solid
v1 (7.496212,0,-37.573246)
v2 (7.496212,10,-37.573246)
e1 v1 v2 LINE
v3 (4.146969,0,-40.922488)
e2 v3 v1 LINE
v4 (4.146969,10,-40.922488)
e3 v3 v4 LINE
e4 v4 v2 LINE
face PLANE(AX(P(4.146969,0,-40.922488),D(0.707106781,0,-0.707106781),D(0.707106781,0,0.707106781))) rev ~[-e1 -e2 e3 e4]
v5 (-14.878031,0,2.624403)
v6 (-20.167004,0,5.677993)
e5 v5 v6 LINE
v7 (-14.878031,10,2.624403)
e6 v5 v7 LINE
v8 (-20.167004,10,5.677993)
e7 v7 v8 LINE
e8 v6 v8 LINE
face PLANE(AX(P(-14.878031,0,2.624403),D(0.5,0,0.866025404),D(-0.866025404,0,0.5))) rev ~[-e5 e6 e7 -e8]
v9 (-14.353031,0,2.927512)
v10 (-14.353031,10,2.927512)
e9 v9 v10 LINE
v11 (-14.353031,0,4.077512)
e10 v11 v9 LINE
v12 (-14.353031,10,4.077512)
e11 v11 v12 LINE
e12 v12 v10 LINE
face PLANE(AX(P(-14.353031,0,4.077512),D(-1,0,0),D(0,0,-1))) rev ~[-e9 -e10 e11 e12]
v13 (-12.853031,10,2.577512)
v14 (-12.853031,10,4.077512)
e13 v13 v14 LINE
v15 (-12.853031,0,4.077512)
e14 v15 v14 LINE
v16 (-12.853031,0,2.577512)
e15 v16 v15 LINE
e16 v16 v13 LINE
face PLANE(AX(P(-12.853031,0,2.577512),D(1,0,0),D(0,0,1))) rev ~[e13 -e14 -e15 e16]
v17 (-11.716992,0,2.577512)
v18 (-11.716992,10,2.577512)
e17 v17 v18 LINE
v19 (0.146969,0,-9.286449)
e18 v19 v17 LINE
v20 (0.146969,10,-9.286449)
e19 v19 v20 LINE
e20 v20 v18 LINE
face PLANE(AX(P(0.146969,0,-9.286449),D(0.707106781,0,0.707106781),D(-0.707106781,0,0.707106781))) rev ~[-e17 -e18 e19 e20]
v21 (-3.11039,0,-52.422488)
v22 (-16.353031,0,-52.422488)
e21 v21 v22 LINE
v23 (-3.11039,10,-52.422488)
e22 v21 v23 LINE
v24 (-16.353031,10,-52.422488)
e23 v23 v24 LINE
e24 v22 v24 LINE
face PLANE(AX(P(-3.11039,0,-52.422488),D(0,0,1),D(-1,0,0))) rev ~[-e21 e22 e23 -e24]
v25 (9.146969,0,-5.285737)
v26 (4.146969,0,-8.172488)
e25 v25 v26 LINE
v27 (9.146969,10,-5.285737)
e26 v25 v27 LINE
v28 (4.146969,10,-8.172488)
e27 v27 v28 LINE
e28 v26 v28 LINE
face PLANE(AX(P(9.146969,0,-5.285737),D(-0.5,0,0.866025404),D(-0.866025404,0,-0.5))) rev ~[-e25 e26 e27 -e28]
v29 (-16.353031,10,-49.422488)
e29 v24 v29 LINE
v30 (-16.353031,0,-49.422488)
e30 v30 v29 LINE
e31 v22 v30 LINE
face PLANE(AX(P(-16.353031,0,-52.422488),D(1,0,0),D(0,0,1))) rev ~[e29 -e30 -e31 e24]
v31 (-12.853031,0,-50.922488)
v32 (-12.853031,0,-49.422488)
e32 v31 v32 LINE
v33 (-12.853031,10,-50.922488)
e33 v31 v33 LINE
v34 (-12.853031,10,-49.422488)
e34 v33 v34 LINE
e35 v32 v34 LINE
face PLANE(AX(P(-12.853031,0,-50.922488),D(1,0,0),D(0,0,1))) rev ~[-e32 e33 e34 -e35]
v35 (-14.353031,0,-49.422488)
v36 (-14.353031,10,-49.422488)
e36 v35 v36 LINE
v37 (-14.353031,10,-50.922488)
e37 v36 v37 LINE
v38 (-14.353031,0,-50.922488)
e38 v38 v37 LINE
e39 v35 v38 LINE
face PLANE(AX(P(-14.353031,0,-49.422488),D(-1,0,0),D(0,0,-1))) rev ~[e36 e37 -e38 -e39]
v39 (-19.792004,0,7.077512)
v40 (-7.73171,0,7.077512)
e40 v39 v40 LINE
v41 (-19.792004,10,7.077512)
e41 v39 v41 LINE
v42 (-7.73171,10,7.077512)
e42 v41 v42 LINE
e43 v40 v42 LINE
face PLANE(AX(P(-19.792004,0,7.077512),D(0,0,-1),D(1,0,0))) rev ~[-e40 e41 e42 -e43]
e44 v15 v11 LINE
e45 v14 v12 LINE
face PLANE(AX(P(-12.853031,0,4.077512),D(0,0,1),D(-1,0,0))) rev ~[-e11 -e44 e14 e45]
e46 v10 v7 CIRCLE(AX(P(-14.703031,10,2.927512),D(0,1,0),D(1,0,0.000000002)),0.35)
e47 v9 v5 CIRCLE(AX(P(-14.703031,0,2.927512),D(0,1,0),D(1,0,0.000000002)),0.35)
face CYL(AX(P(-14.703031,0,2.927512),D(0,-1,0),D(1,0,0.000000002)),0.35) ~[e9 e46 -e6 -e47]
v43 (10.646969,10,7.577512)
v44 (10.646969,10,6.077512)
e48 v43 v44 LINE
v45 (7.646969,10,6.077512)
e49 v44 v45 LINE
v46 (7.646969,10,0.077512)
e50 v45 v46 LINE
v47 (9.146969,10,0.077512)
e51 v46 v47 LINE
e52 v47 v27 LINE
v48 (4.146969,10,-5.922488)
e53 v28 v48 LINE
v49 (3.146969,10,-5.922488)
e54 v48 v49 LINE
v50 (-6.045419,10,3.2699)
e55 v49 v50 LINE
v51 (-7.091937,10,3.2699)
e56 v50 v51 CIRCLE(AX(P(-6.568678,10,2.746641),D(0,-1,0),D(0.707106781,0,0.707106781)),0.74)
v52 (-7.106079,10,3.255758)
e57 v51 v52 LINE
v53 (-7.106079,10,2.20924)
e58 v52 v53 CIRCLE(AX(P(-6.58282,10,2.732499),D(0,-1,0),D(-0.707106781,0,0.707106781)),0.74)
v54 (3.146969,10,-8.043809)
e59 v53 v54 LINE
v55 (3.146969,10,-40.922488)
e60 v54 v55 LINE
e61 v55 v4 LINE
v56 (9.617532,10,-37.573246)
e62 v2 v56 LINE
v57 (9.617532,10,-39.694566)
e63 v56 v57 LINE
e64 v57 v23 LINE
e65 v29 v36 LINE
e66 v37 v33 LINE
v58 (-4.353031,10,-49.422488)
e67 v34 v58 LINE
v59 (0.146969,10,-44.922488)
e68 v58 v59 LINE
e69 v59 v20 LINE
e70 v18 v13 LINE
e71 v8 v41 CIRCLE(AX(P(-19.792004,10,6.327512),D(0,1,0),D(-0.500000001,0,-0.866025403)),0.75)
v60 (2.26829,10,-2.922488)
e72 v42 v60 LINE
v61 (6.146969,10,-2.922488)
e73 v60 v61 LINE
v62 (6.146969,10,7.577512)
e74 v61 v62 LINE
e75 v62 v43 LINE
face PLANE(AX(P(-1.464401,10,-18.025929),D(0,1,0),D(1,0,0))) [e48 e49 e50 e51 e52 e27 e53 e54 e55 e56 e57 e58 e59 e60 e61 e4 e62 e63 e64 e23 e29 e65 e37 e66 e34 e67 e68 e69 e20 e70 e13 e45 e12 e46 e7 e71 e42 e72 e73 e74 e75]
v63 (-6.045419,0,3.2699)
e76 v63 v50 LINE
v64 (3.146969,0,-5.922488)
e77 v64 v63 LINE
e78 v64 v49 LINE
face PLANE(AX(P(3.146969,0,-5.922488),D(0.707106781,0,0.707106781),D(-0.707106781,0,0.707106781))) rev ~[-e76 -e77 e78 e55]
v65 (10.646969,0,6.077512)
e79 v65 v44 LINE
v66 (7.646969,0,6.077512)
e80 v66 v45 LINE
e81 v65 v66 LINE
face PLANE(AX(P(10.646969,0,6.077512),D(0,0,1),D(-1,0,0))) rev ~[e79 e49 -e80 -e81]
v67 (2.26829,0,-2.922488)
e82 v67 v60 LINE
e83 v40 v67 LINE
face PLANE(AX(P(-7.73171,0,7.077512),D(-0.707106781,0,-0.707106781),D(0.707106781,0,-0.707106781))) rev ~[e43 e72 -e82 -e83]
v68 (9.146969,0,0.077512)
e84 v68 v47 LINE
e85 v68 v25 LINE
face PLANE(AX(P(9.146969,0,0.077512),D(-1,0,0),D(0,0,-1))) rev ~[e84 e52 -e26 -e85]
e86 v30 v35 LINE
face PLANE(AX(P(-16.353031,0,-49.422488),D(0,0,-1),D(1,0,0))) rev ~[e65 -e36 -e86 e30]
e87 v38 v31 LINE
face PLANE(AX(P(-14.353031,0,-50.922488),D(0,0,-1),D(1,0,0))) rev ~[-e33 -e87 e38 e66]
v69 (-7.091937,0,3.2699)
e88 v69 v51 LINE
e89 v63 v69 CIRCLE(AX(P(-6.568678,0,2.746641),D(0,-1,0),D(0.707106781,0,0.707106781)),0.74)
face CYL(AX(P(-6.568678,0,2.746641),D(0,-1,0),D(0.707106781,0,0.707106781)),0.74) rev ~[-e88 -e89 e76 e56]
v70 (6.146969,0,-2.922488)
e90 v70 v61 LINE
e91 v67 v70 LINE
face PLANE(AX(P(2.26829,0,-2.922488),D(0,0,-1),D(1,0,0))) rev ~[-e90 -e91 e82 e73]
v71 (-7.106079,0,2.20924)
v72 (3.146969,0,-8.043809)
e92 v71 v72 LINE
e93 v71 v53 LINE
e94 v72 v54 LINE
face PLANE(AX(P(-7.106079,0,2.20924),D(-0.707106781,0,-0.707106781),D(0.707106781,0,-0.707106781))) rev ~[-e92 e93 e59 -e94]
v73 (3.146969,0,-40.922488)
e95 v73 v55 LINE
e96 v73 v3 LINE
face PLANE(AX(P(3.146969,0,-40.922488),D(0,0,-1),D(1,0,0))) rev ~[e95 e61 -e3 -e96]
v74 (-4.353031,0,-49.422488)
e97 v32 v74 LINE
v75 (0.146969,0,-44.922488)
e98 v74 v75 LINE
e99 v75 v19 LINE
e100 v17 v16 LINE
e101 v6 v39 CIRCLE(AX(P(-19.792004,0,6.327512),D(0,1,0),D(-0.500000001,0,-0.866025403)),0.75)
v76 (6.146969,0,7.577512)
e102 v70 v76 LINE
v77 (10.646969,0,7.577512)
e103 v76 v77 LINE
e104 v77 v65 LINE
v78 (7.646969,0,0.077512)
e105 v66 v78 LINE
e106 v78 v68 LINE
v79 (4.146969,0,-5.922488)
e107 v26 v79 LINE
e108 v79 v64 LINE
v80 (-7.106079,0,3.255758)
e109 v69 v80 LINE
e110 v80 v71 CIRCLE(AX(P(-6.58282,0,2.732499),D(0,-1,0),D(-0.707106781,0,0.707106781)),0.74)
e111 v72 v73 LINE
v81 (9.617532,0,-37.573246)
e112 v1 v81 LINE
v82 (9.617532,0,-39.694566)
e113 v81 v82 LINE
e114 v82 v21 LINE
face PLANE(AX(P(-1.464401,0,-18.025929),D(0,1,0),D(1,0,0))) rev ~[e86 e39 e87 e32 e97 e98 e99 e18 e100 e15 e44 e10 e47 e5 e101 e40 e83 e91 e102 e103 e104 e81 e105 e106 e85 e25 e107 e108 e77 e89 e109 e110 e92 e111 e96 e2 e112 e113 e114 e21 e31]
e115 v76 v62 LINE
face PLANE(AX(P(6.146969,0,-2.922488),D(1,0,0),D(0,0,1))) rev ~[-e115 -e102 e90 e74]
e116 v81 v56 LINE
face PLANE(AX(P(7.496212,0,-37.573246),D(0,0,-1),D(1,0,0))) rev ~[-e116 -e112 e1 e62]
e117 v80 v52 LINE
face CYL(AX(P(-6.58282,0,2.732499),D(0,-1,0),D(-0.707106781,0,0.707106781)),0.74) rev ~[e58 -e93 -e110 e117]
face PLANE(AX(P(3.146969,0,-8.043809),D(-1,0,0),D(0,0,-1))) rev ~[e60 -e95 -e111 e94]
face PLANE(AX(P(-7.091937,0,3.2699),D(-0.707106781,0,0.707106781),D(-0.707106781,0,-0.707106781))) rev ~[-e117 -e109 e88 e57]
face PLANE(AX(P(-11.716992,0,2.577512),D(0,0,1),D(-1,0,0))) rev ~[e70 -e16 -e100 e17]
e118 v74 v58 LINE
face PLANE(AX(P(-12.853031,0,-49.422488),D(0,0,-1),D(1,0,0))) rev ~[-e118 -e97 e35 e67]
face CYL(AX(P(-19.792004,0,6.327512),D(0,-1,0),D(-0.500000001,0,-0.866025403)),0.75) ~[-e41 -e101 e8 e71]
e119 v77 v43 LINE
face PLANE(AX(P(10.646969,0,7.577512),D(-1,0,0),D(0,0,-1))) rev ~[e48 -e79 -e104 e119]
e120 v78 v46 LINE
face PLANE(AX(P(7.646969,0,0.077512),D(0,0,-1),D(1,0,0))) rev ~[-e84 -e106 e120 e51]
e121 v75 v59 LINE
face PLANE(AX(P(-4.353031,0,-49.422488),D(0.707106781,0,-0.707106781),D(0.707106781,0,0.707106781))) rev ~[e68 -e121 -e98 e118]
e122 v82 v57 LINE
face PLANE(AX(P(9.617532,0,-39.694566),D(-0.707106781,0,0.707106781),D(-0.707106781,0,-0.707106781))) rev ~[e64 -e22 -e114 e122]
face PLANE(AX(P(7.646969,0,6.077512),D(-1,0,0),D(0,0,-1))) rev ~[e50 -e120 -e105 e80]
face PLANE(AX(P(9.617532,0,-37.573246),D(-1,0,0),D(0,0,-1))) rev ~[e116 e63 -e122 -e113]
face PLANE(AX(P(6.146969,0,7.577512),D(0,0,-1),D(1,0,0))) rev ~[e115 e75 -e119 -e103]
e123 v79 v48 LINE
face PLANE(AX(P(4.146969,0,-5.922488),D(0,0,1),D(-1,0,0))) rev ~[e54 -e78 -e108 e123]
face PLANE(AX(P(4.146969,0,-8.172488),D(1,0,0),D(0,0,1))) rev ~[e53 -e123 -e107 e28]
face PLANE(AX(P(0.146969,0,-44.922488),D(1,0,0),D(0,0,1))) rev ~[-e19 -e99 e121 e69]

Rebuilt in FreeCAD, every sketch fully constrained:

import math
import FreeCAD as App
import Part
import Sketcher

V = App.Vector
Q = App.Units.Quantity

doc = App.newDocument("Part")
body = doc.addObject("PartDesign::Body", "Body")

# Sketch on XZ plane
sketch1 = doc.addObject("Sketcher::SketchObject", "Sketch")
body.addObject(sketch1)
sketch1.AttachmentSupport = (doc.XZ_Plane, [""])
sketch1.MapMode = "FlatFace"
sketch1.addGeometry([
    Part.LineSegment(V(-12.853031, 2.577512, 0), V(-12.853031, 4.077512, 0)),  # 0
    Part.LineSegment(V(-12.853031, 4.077512, 0), V(-14.353031, 4.077512, 0)),  # 1
    Part.LineSegment(V(-14.353031, 4.077512, 0), V(-14.353031, 2.927512, 0)),  # 2
    Part.ArcOfCircle(Part.Circle(V(-14.703031, 2.927512, 0), V(0, 0, 1), 0.35), math.radians(-120), math.radians(0)),  # 3
    Part.LineSegment(V(-14.878031, 2.624403, 0), V(-20.167004, 5.677993, 0)),  # 4
    Part.ArcOfCircle(Part.Circle(V(-19.792004, 6.327512, 0), V(0, 0, 1), 0.75), math.radians(90), math.radians(240)),  # 5
    Part.LineSegment(V(-19.792004, 7.077512, 0), V(-7.73171, 7.077512, 0)),  # 6
    Part.LineSegment(V(-7.73171, 7.077512, 0), V(2.26829, -2.922488, 0)),  # 7
    Part.LineSegment(V(2.26829, -2.922488, 0), V(6.146969, -2.922488, 0)),  # 8
    Part.LineSegment(V(6.146969, -2.922488, 0), V(6.146969, 7.577512, 0)),  # 9
    Part.LineSegment(V(6.146969, 7.577512, 0), V(10.646969, 7.577512, 0)),  # 10
    Part.LineSegment(V(10.646969, 7.577512, 0), V(10.646969, 6.077512, 0)),  # 11
    Part.LineSegment(V(10.646969, 6.077512, 0), V(7.646969, 6.077512, 0)),  # 12
    Part.LineSegment(V(7.646969, 6.077512, 0), V(7.646969, 0.077512, 0)),  # 13
    Part.LineSegment(V(7.646969, 0.077512, 0), V(9.146969, 0.077512, 0)),  # 14
    Part.LineSegment(V(9.146969, 0.077512, 0), V(9.146969, -5.285737, 0)),  # 15
    Part.LineSegment(V(9.146969, -5.285737, 0), V(4.146969, -8.172488, 0)),  # 16
    Part.LineSegment(V(4.146969, -8.172488, 0), V(4.146969, -5.922488, 0)),  # 17
    Part.LineSegment(V(4.146969, -5.922488, 0), V(3.146969, -5.922488, 0)),  # 18
    Part.LineSegment(V(3.146969, -5.922488, 0), V(-6.045419, 3.2699, 0)),  # 19
    Part.ArcOfCircle(Part.Circle(V(-6.568678, 2.746641, 0), V(0, 0, 1), 0.74), math.radians(45), math.radians(135)),  # 20
    Part.LineSegment(V(-7.091937, 3.2699, 0), V(-7.106079, 3.255758, 0)),  # 21
    Part.ArcOfCircle(Part.Circle(V(-6.58282, 2.732499, 0), V(0, 0, 1), 0.74), math.radians(135), math.radians(225)),  # 22
    Part.LineSegment(V(-7.106079, 2.20924, 0), V(3.146969, -8.043809, 0)),  # 23
    Part.LineSegment(V(3.146969, -8.043809, 0), V(3.146969, -40.922488, 0)),  # 24
    Part.LineSegment(V(3.146969, -40.922488, 0), V(4.146969, -40.922488, 0)),  # 25
    Part.LineSegment(V(4.146969, -40.922488, 0), V(7.496212, -37.573246, 0)),  # 26
    Part.LineSegment(V(7.496212, -37.573246, 0), V(9.617532, -37.573246, 0)),  # 27
    Part.LineSegment(V(9.617532, -37.573246, 0), V(9.617532, -39.694566, 0)),  # 28
    Part.LineSegment(V(9.617532, -39.694566, 0), V(-3.11039, -52.422488, 0)),  # 29
    Part.LineSegment(V(-3.11039, -52.422488, 0), V(-16.353031, -52.422488, 0)),  # 30
    Part.LineSegment(V(-16.353031, -52.422488, 0), V(-16.353031, -49.422488, 0)),  # 31
    Part.LineSegment(V(-16.353031, -49.422488, 0), V(-14.353031, -49.422488, 0)),  # 32
    Part.LineSegment(V(-14.353031, -49.422488, 0), V(-14.353031, -50.922488, 0)),  # 33
    Part.LineSegment(V(-14.353031, -50.922488, 0), V(-12.853031, -50.922488, 0)),  # 34
    Part.LineSegment(V(-12.853031, -50.922488, 0), V(-12.853031, -49.422488, 0)),  # 35
    Part.LineSegment(V(-12.853031, -49.422488, 0), V(-4.353031, -49.422488, 0)),  # 36
    Part.LineSegment(V(-4.353031, -49.422488, 0), V(0.146969, -44.922488, 0)),  # 37
    Part.LineSegment(V(0.146969, -44.922488, 0), V(0.146969, -9.286449, 0)),  # 38
    Part.LineSegment(V(0.146969, -9.286449, 0), V(-11.716992, 2.577512, 0)),  # 39
    Part.LineSegment(V(-11.716992, 2.577512, 0), V(-12.853031, 2.577512, 0)),  # 40
], False)
sketch1.addConstraint([
    Sketcher.Constraint("Coincident", 0, 2, 1, 1),
    Sketcher.Constraint("Coincident", 1, 2, 2, 1),
    Sketcher.Constraint("Tangent", 2, 2, 3, 2),
    Sketcher.Constraint("Tangent", 3, 1, 4, 1),
    Sketcher.Constraint("Tangent", 4, 2, 5, 2),
    Sketcher.Constraint("Tangent", 5, 1, 6, 1),
    Sketcher.Constraint("Coincident", 6, 2, 7, 1),
    Sketcher.Constraint("Coincident", 7, 2, 8, 1),
    Sketcher.Constraint("Coincident", 8, 2, 9, 1),
    Sketcher.Constraint("Coincident", 9, 2, 10, 1),
    Sketcher.Constraint("Coincident", 10, 2, 11, 1),
    Sketcher.Constraint("Coincident", 11, 2, 12, 1),
    Sketcher.Constraint("Coincident", 12, 2, 13, 1),
    Sketcher.Constraint("Coincident", 13, 2, 14, 1),
    Sketcher.Constraint("Coincident", 14, 2, 15, 1),
    Sketcher.Constraint("Coincident", 15, 2, 16, 1),
    Sketcher.Constraint("Coincident", 16, 2, 17, 1),
    Sketcher.Constraint("Coincident", 17, 2, 18, 1),
    Sketcher.Constraint("Coincident", 18, 2, 19, 1),
    Sketcher.Constraint("Tangent", 19, 2, 20, 1),
    Sketcher.Constraint("Tangent", 20, 2, 21, 1),
    Sketcher.Constraint("Tangent", 21, 2, 22, 1),
    Sketcher.Constraint("Tangent", 22, 2, 23, 1),
    Sketcher.Constraint("Coincident", 23, 2, 24, 1),
    Sketcher.Constraint("Coincident", 24, 2, 25, 1),
    Sketcher.Constraint("Coincident", 25, 2, 26, 1),
    Sketcher.Constraint("Coincident", 26, 2, 27, 1),
    Sketcher.Constraint("Coincident", 27, 2, 28, 1),
    Sketcher.Constraint("Coincident", 28, 2, 29, 1),
    Sketcher.Constraint("Coincident", 29, 2, 30, 1),
    Sketcher.Constraint("Coincident", 30, 2, 31, 1),
    Sketcher.Constraint("Coincident", 31, 2, 32, 1),
    Sketcher.Constraint("Coincident", 32, 2, 33, 1),
    Sketcher.Constraint("Coincident", 33, 2, 34, 1),
    Sketcher.Constraint("Coincident", 34, 2, 35, 1),
    Sketcher.Constraint("Coincident", 35, 2, 36, 1),
    Sketcher.Constraint("Coincident", 36, 2, 37, 1),
    Sketcher.Constraint("Coincident", 37, 2, 38, 1),
    Sketcher.Constraint("Coincident", 38, 2, 39, 1),
    Sketcher.Constraint("Coincident", 39, 2, 40, 1),
    Sketcher.Constraint("Coincident", 40, 2, 0, 1),
    Sketcher.Constraint("Vertical", 0),
    Sketcher.Constraint("Horizontal", 1),
    Sketcher.Constraint("Vertical", 2),
    Sketcher.Constraint("Horizontal", 6),
    Sketcher.Constraint("Horizontal", 8),
    Sketcher.Constraint("Vertical", 9),
    Sketcher.Constraint("Horizontal", 10),
    Sketcher.Constraint("Vertical", 11),
    Sketcher.Constraint("Horizontal", 12),
    Sketcher.Constraint("Vertical", 13),
    Sketcher.Constraint("Horizontal", 14),
    Sketcher.Constraint("Vertical", 15),
    Sketcher.Constraint("Vertical", 17),
    Sketcher.Constraint("Horizontal", 18),
    Sketcher.Constraint("Vertical", 24),
    Sketcher.Constraint("Horizontal", 25),
    Sketcher.Constraint("Horizontal", 27),
    Sketcher.Constraint("Vertical", 28),
    Sketcher.Constraint("Horizontal", 30),
    Sketcher.Constraint("Vertical", 31),
    Sketcher.Constraint("Horizontal", 32),
    Sketcher.Constraint("Vertical", 33),
    Sketcher.Constraint("Horizontal", 34),
    Sketcher.Constraint("Vertical", 35),
    Sketcher.Constraint("Horizontal", 36),
    Sketcher.Constraint("Vertical", 38),
    Sketcher.Constraint("Horizontal", 40),
    Sketcher.Constraint("Equal", 20, 22),
    Sketcher.Constraint("Parallel", 7, 19),
    Sketcher.Constraint("Perpendicular", 19, 21),
    Sketcher.Constraint("Parallel", 19, 23),
    Sketcher.Constraint("Perpendicular", 23, 26),
    Sketcher.Constraint("Parallel", 26, 29),
    Sketcher.Constraint("Parallel", 29, 37),
    Sketcher.Constraint("Perpendicular", 37, 39),
    Sketcher.Constraint("Horizontal", 19, 2, 20, 2),
    Sketcher.Constraint("Horizontal", 32, 2, 35, 2),
    Sketcher.Constraint("Vertical", 18, 2, 23, 2),
    Sketcher.Constraint("Vertical", 17, 2, 25, 2),
    Sketcher.Constraint("Vertical", 2, 2, 32, 2),
    Sketcher.Constraint("Vertical", 0, 2, 34, 2),
    Sketcher.Constraint("Equal", 1, 14),
    Sketcher.Constraint("Equal", 34, 0),
    Sketcher.Constraint("Equal", 0, 11),
    Sketcher.Constraint("Equal", 27, 28),
    Sketcher.Constraint("Equal", 12, 31),
    Sketcher.Constraint("Equal", 11, 33),
    Sketcher.Constraint("DistanceX", 12, 2, 12, 1, 3.0),
    Sketcher.Constraint("DistanceX", 18, 2, 18, 1, 1.0),
    Sketcher.Constraint("DistanceX", 32, 1, 32, 2, 2.0),
    Sketcher.Constraint("DistanceY", 13, 2, 13, 1, 6.0),
    Sketcher.Constraint("Angle", 4, Q("150 deg")),
    Sketcher.Constraint("Angle", 16, Q("-150 deg")),
    Sketcher.Constraint("Radius", 3, 0.35),
    Sketcher.Constraint("Radius", 5, 0.75),
    Sketcher.Constraint("Radius", 20, 0.74),
    Sketcher.Constraint("Distance", 19, 13.0),
    Sketcher.Constraint("Distance", 29, 18.0),
    Sketcher.Constraint("DistanceX", 1, 2, 1, 1, 1.5),
    Sketcher.Constraint("DistanceX", 10, 1, 10, 2, 4.5),
    Sketcher.Constraint("DistanceX", 36, 1, 36, 2, 8.5),
    Sketcher.Constraint("DistanceY", 9, 1, 9, 2, 10.5),
    Sketcher.Constraint("DistanceY", 1, 2, 5, 1, 3.0),
    Sketcher.Constraint("DistanceX", 6, 2, 7, 2, 10.0),
    Sketcher.Constraint("DistanceX", 0, 2, 8, 2, 19.0),
    Sketcher.Constraint("DistanceX", 16, 2, 8, 2, 2.0),
    Sketcher.Constraint("DistanceY", 17, 2, 7, 2, 3.0),
    Sketcher.Constraint("DistanceY", 24, 2, 18, 2, 35.0),
    Sketcher.Constraint("DistanceY", 33, 2, 24, 2, 10.0),
    Sketcher.Constraint("DistanceX", 37, 2, 24, 2, 3.0),
    Sketcher.Constraint("Distance", 23, 14.5),
    Sketcher.Constraint("DistanceY", 2, 2, 2, 1, 1.15),
    Sketcher.Constraint("DistanceY", 17, 1, 17, 2, 2.25),
    Sketcher.Constraint("DistanceX", 8, 1, 8, 2, 3.87868),
    Sketcher.Constraint("DistanceX", 27, 1, 27, 2, 2.12132),
    Sketcher.Constraint("DistanceX", 40, 2, 40, 1, 1.136039),
    Sketcher.Constraint("DistanceY", -1, 1, 22, 3, 2.732499),
    Sketcher.Constraint("DistanceX", 3, 3, -1, 1, 14.703031),
])
pad1 = doc.addObject("PartDesign::Pad", "Pad")
body.addObject(pad1)
pad1.Profile = sketch1
pad1.Length = 10
pad1.Reversed = True

doc.recompute()
